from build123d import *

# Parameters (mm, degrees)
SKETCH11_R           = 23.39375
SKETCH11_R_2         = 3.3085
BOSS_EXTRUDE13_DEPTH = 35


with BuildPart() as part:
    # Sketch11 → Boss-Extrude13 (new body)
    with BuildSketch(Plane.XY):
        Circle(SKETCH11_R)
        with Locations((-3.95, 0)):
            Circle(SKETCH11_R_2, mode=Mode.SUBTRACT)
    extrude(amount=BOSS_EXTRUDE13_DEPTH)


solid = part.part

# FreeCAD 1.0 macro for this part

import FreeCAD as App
import Part
import Sketcher
Q = App.Units.Quantity

doc = App.newDocument("Part")
body = doc.addObject("PartDesign::Body", "Body")

# Sketch on XY plane
sketch1 = body.newObject("Sketcher::SketchObject", "Sketch")
sketch1.AttachmentSupport = (doc.getObject("XY_Plane"), [""])
sketch1.MapMode = "FlatFace"
sketch1.addGeometry([
    Part.Circle(App.Vector(0, 0, 0), App.Vector(0, 0, 1), 23.4),
    Part.Circle(App.Vector(-4, 0, 0), App.Vector(0, 0, 1), 3.3),
], False)
sketch1.addConstraint([
    Sketcher.Constraint("Coincident", 0, 3, -1, 1),
    Sketcher.Constraint("PointOnObject", 1, 3, -1),
    Sketcher.Constraint("Diameter", 1, Q("6.617 mm")),
    Sketcher.Constraint("Diameter", 0, Q("46.7875 mm")),
    Sketcher.Constraint("DistanceX", 1, 3, -1, 1, Q("3.95 mm")),
])
pad1 = body.newObject("PartDesign::Pad", "Pad")
pad1.Profile = sketch1
pad1.Length = 35

doc.recompute()
